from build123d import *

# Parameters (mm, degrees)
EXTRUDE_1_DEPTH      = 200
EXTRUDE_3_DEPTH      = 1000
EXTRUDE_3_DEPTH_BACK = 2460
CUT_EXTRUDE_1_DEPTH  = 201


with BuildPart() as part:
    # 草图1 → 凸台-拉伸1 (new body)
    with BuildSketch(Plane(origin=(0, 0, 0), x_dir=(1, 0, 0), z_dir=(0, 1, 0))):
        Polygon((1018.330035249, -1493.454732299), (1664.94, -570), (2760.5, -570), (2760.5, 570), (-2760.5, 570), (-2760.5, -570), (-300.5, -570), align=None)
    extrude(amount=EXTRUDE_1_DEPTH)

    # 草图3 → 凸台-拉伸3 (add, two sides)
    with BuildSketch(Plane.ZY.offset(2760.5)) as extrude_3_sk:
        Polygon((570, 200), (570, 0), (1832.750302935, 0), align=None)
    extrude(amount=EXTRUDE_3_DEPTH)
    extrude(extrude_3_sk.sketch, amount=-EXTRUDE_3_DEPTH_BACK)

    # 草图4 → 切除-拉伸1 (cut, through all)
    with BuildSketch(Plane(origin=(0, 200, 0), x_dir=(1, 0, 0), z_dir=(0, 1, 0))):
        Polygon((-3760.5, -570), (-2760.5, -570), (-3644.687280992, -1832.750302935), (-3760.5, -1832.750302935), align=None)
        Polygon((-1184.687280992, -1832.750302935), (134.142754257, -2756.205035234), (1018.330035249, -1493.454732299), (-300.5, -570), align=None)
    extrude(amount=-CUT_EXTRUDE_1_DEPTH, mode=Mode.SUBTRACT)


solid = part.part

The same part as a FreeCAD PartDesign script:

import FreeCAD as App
import Part
import Sketcher
from FreeCAD import Vector
Q = App.Units.Quantity


def add_polygon(sketch, points):
    """Adds a closed chain of lines whose ends are joined by coincident constraints."""
    first, n = sketch.GeometryCount, len(points)
    for a, b in zip(points, points[1:] + points[:1]):
        sketch.addGeometry(Part.LineSegment(App.Vector(*a, 0), App.Vector(*b, 0)), False)
    for i in range(n):
        sketch.addConstraint(Sketcher.Constraint("Coincident", first + i, 2, first + (i + 1) % n, 1))

doc = App.newDocument("Part")
params = doc.addObject("Spreadsheet::Sheet", "Params")
for row, (alias, value) in enumerate([
    ("sketch1_width", "5521 mm"),
    ("sketch1_width2", "2460 mm"),
    ("sketch1_height", "1140 mm"),
    ("sketch1_width3", "1095.56 mm"),
    ("pad1_length", "200 mm"),
    ("sketch2_width", "200 mm"),
    ("pad2_length", "1000 mm"),
    ("pad2_length2", "2460 mm"),
    ("sketch3_width", "1000 mm"),
], start=1):
    params.set(f"A{row}", alias)
    params.set(f"B{row}", "=" + value)
    params.setAlias(f"B{row}", alias)

body = doc.addObject("PartDesign::Body", "Body")

# Sketch on XZ plane
sketch1 = doc.addObject("Sketcher::SketchObject", "Sketch")
body.addObject(sketch1)
sketch1.AttachmentSupport = (doc.XZ_Plane, [""])
sketch1.MapMode = "FlatFace"
add_polygon(sketch1, [(1018, 1493), (1665, 570), (2760, 570), (2760, -570), (-2760, -570), (-2760, 570), (-300, 570)])  # lines 0-6
sketch1.addConstraint([
    Sketcher.Constraint("Horizontal", 1),
    Sketcher.Constraint("Vertical", 2),
    Sketcher.Constraint("Horizontal", 3),
    Sketcher.Constraint("Vertical", 4),
    Sketcher.Constraint("Horizontal", 5),
    Sketcher.Constraint("Symmetric", 1, 2, 3, 2, -1, 1),
    Sketcher.Constraint("Perpendicular", 0, 6),
    Sketcher.Constraint("Horizontal", 1, 2, 4, 2),
    Sketcher.Constraint("DistanceX", 3, 2, 3, 1, 5521.0),
    Sketcher.Constraint("DistanceX", 5, 1, 5, 2, 2460.0),
    Sketcher.Constraint("DistanceY", 2, 2, 2, 1, 1140.0),
    Sketcher.Constraint("Angle", 0, Q("-55 deg")),
    Sketcher.Constraint("DistanceX", 1, 1, 1, 2, 1095.56),
])
sketch1.setExpression("Constraints[15]", "Params.sketch1_width")
sketch1.setExpression("Constraints[16]", "Params.sketch1_width2")
sketch1.setExpression("Constraints[17]", "Params.sketch1_height")
sketch1.setExpression("Constraints[19]", "Params.sketch1_width3")
pad1 = doc.addObject("PartDesign::Pad", "Pad")
body.addObject(pad1)
pad1.Profile = sketch1
pad1.setExpression("Length", "Params.pad1_length")
pad1.Reversed = True

# Sketch on YZ plane
sketch2 = doc.addObject("Sketcher::SketchObject", "Sketch001")
body.addObject(sketch2)
sketch2.AttachmentSupport = (doc.YZ_Plane, [""])
sketch2.MapMode = "FlatFace"
sketch2.AttachmentOffset = App.Placement(Vector(0, 0, -2760.5), App.Rotation())
add_polygon(sketch2, [(200, 570), (0, 570), (0, 1833)])  # lines 0-2
sketch2.addConstraint([
    Sketcher.Constraint("Horizontal", 0),
    Sketcher.Constraint("Vertical", 1),
    Sketcher.Constraint("PointOnObject", 0, 2, -2),
    Sketcher.Constraint("DistanceX", 0, 2, 0, 1, 200.0),
    Sketcher.Constraint("Angle", 2, Q("-81 deg")),
    Sketcher.Constraint("DistanceY", -1, 1, 0, 2, 570.0),
])
sketch2.setExpression("Constraints[6]", "Params.sketch2_width")
pad2 = doc.addObject("PartDesign::Pad", "Pad001")
body.addObject(pad2)
pad2.Profile = sketch2
pad2.Type = "TwoLengths"
pad2.setExpression("Length", "Params.pad2_length")
pad2.setExpression("Length2", "Params.pad2_length2")
pad2.Reversed = True

# Sketch on XZ plane
sketch3 = doc.addObject("Sketcher::SketchObject", "Sketch002")
body.addObject(sketch3)
sketch3.AttachmentSupport = (doc.XZ_Plane, [""])
sketch3.MapMode = "FlatFace"
sketch3.AttachmentOffset = App.Placement(Vector(0, 0, -200), App.Rotation())
add_polygon(sketch3, [(-2760, 570), (-3760, 570), (-3760, 1833), (-3645, 1833)])  # lines 0-3
add_polygon(sketch3, [(-1185, 1833), (134, 2756), (1018, 1493), (-300, 570)])  # lines 4-7
sketch3.addConstraint([
    Sketcher.Constraint("Horizontal", 0),
    Sketcher.Constraint("Vertical", 1),
    Sketcher.Constraint("Horizontal", 2),
    Sketcher.Constraint("Perpendicular", 3, 4),
    Sketcher.Constraint("Perpendicular", 4, 5),
    Sketcher.Constraint("Perpendicular", 5, 6),
    Sketcher.Constraint("Perpendicular", 6, 7),
    Sketcher.Constraint("Horizontal", 3, 2, 6, 2),
    Sketcher.Constraint("Horizontal", 2, 2, 7, 2),
    Sketcher.Constraint("DistanceX", 0, 2, 0, 1, 1000.0),
    Sketcher.Constraint("Angle", 3, Q("-55 deg")),
    Sketcher.Constraint("DistanceY", -1, 1, 0, 2, 570.0),
    Sketcher.Constraint("DistanceX", 3, 2, 6, 2, 2460.0),
    Sketcher.Constraint("DistanceX", 0, 2, -1, 1, 3760.5),
    Sketcher.Constraint("DistanceX", 2, 1, 2, 2, 115.812719),
    Sketcher.Constraint("DistanceY", 5, 2, 2, 2, 339.295571),
])
sketch3.setExpression("Constraints[17]", "Params.sketch3_width")
pocket1 = doc.addObject("PartDesign::Pocket", "Pocket")
body.addObject(pocket1)
pocket1.Profile = sketch3
pocket1.Type = "ThroughAll"
pocket1.Reversed = True

doc.recompute()
